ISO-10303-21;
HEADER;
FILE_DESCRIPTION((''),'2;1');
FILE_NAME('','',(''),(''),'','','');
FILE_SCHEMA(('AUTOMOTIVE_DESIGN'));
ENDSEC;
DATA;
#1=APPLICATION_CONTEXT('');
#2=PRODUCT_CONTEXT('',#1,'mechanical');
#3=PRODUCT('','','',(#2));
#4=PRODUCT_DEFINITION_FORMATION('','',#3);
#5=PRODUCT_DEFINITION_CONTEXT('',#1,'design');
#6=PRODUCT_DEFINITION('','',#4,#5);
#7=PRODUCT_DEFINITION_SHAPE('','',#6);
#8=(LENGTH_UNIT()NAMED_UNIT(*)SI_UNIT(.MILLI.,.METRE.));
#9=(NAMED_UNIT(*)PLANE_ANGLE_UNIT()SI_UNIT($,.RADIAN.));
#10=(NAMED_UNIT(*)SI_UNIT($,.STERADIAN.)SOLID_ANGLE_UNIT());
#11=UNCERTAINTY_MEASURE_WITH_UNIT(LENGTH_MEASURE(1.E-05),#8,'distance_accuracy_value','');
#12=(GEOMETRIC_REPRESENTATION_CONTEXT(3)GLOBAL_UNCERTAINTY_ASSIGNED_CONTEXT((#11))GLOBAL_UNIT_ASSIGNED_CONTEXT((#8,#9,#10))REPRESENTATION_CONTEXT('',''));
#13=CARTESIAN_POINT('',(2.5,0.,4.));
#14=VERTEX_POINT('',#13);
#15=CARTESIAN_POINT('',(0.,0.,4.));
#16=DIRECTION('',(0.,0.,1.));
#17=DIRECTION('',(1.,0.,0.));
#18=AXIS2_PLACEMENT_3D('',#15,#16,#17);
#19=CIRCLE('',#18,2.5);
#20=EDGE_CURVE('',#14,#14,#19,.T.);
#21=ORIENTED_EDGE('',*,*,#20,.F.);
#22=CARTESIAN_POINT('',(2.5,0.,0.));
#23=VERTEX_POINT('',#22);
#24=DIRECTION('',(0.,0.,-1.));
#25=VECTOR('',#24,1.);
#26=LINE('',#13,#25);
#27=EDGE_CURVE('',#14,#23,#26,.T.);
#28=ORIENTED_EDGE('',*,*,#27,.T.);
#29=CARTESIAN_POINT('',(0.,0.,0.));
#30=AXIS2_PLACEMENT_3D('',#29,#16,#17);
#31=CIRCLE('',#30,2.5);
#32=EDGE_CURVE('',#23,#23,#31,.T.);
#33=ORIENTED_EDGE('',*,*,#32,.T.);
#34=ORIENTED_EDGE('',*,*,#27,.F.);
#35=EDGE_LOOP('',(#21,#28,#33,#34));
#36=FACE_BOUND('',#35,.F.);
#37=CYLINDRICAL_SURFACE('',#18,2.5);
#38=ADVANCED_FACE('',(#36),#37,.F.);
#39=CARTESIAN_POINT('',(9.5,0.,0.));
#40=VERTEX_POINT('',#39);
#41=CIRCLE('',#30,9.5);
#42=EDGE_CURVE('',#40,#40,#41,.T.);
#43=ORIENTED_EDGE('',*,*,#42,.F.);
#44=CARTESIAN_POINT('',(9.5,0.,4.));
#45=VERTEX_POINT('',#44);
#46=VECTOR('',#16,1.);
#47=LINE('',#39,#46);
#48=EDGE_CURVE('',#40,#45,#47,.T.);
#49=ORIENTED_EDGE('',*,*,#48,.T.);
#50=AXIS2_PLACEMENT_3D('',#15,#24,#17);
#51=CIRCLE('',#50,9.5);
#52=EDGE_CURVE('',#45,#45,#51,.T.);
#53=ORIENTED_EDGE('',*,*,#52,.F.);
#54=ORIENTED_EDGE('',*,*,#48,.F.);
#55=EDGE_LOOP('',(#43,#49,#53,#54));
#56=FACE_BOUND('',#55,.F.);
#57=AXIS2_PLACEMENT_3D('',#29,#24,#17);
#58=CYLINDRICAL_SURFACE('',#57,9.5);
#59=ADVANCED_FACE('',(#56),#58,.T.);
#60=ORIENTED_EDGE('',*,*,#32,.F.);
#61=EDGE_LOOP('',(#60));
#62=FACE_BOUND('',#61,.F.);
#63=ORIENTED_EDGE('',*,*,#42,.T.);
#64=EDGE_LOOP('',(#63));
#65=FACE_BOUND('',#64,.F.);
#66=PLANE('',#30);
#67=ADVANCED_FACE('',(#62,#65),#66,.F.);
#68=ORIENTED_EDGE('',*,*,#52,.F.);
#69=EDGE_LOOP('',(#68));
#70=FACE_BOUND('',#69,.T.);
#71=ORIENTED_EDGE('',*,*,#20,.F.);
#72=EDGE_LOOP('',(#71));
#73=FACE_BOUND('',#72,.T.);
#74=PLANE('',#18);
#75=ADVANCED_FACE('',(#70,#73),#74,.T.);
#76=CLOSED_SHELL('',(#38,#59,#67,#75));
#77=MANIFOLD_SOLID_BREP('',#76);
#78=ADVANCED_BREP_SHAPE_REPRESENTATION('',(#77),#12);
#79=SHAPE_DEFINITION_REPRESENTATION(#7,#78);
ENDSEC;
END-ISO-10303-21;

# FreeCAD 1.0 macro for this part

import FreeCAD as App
import Part
import Sketcher

doc = App.newDocument("Part")
body = doc.addObject("PartDesign::Body", "Body")

sketch1 = doc.addObject("Sketcher::SketchObject", "Sketch")
body.addObject(sketch1)
sketch1.AttachmentSupport = (doc.XY_Plane, [""])
sketch1.MapMode = "FlatFace"
sketch1.addGeometry(Part.Circle(App.Vector(0, 0, 0), App.Vector(0, 0, 1), 9.5), False)
sketch1.addConstraint([
    Sketcher.Constraint("Coincident", 0, 3, -1, 1),
    Sketcher.Constraint("Diameter", 0, 19.0),
])
pad1 = doc.addObject("PartDesign::Pad", "Pad")
body.addObject(pad1)
pad1.Profile = sketch1
pad1.Length = 4

sketch2 = doc.addObject("Sketcher::SketchObject", "Sketch001")
body.addObject(sketch2)
sketch2.AttachmentSupport = (doc.XY_Plane, [""])
sketch2.MapMode = "FlatFace"
sketch2.AttachmentOffset = App.Placement(App.Vector(0, 0, 4), App.Rotation())
sketch2.addGeometry(Part.Circle(App.Vector(0, 0, 0), App.Vector(0, 0, 1), 2.5), False)
sketch2.addConstraint([
    Sketcher.Constraint("Coincident", 0, 3, -1, 1),
    Sketcher.Constraint("Diameter", 0, 5.0),
])
pocket1 = doc.addObject("PartDesign::Pocket", "Pocket")
body.addObject(pocket1)
pocket1.Profile = sketch2
pocket1.Length = 4

doc.recompute()
